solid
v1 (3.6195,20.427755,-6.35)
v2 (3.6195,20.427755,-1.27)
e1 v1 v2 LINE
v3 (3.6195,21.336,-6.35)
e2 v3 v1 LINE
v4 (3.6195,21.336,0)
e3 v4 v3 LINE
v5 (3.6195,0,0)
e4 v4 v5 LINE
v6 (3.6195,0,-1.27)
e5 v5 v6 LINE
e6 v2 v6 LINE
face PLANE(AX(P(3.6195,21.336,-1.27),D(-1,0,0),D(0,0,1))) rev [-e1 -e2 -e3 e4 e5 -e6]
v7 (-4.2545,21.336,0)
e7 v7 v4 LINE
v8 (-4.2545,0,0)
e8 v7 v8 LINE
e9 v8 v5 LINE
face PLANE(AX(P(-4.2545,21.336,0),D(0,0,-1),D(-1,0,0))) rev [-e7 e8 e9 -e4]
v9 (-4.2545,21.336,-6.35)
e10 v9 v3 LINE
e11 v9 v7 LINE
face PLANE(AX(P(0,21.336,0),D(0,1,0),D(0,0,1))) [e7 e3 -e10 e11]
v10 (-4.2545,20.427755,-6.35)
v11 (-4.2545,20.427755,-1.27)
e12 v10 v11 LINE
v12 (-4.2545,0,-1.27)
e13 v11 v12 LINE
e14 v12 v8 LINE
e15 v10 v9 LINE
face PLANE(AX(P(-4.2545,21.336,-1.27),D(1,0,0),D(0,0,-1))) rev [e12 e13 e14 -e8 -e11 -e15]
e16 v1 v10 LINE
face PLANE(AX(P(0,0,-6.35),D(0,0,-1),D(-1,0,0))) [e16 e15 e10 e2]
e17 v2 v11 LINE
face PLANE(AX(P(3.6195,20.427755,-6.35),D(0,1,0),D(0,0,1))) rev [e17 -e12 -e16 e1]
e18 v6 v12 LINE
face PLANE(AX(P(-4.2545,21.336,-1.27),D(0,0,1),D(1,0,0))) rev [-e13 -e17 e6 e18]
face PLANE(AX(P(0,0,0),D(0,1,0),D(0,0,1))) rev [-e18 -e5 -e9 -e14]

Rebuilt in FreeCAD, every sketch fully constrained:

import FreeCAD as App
import Part
import Sketcher
Q = App.Units.Quantity


def add_polygon(sketch, points):
    """Adds a closed chain of lines whose ends are joined by coincident constraints."""
    first, n = sketch.GeometryCount, len(points)
    for a, b in zip(points, points[1:] + points[:1]):
        sketch.addGeometry(Part.LineSegment(App.Vector(*a, 0), App.Vector(*b, 0)), False)
    for i in range(n):
        sketch.addConstraint(Sketcher.Constraint("Coincident", first + i, 2, first + (i + 1) % n, 1))

doc = App.newDocument("Part")
body = doc.addObject("PartDesign::Body", "Body")

sketch1 = doc.addObject("Sketcher::SketchObject", "Sketch")
body.addObject(sketch1)
sketch1.AttachmentSupport = (doc.XZ_Plane, [""])
sketch1.MapMode = "FlatFace"
add_polygon(sketch1, [(-4.2545, -1.27), (-4.2545, 0), (3.6195, 0), (3.6195, -1.27)])
sketch1.addConstraint([
    Sketcher.Constraint("Vertical", 0),
    Sketcher.Constraint("Horizontal", 1),
    Sketcher.Constraint("Vertical", 2),
    Sketcher.Constraint("Horizontal", 3),
    Sketcher.Constraint("PointOnObject", 0, 2, -1),
    Sketcher.Constraint("DistanceX", 1, 1, 1, 2, Q("0.31 in")),
    Sketcher.Constraint("DistanceY", 0, 1, 0, 2, Q("0.05 in")),
    Sketcher.Constraint("DistanceX", 0, 2, -1, 1, Q("0.1675 in")),
])
pad1 = doc.addObject("PartDesign::Pad", "Pad")
body.addObject(pad1)
pad1.Profile = sketch1
pad1.Length = Q("0.84 in")
pad1.Reversed = True

sketch2 = doc.addObject("Sketcher::SketchObject", "Sketch001")
body.addObject(sketch2)
sketch2.AttachmentSupport = (doc.XY_Plane, [""])
sketch2.MapMode = "FlatFace"
sketch2.AttachmentOffset = App.Placement(App.Vector(0, 0, -0.05 * 25.4), App.Rotation())
add_polygon(sketch2, [(3.6195, 21.336), (3.6195, 20.427755), (-4.2545, 20.427755), (-4.2545, 21.336)])
sketch2.addConstraint([
    Sketcher.Constraint("Vertical", 0),
    Sketcher.Constraint("Horizontal", 1),
    Sketcher.Constraint("Vertical", 2),
    Sketcher.Constraint("Horizontal", 3),
    Sketcher.Constraint("DistanceX", 1, 2, 1, 1, Q("0.31 in")),
    Sketcher.Constraint("DistanceY", -1, 1, 2, 2, Q("0.84 in")),
    Sketcher.Constraint("DistanceX", -1, 1, 0, 2, Q("0.1425 in")),
    Sketcher.Constraint("DistanceY", 0, 2, 0, 1, 0.908245),
])
pad2 = doc.addObject("PartDesign::Pad", "Pad001")
body.addObject(pad2)
pad2.Profile = sketch2
pad2.Length = Q("0.2 in")
pad2.Reversed = True

doc.recompute()
